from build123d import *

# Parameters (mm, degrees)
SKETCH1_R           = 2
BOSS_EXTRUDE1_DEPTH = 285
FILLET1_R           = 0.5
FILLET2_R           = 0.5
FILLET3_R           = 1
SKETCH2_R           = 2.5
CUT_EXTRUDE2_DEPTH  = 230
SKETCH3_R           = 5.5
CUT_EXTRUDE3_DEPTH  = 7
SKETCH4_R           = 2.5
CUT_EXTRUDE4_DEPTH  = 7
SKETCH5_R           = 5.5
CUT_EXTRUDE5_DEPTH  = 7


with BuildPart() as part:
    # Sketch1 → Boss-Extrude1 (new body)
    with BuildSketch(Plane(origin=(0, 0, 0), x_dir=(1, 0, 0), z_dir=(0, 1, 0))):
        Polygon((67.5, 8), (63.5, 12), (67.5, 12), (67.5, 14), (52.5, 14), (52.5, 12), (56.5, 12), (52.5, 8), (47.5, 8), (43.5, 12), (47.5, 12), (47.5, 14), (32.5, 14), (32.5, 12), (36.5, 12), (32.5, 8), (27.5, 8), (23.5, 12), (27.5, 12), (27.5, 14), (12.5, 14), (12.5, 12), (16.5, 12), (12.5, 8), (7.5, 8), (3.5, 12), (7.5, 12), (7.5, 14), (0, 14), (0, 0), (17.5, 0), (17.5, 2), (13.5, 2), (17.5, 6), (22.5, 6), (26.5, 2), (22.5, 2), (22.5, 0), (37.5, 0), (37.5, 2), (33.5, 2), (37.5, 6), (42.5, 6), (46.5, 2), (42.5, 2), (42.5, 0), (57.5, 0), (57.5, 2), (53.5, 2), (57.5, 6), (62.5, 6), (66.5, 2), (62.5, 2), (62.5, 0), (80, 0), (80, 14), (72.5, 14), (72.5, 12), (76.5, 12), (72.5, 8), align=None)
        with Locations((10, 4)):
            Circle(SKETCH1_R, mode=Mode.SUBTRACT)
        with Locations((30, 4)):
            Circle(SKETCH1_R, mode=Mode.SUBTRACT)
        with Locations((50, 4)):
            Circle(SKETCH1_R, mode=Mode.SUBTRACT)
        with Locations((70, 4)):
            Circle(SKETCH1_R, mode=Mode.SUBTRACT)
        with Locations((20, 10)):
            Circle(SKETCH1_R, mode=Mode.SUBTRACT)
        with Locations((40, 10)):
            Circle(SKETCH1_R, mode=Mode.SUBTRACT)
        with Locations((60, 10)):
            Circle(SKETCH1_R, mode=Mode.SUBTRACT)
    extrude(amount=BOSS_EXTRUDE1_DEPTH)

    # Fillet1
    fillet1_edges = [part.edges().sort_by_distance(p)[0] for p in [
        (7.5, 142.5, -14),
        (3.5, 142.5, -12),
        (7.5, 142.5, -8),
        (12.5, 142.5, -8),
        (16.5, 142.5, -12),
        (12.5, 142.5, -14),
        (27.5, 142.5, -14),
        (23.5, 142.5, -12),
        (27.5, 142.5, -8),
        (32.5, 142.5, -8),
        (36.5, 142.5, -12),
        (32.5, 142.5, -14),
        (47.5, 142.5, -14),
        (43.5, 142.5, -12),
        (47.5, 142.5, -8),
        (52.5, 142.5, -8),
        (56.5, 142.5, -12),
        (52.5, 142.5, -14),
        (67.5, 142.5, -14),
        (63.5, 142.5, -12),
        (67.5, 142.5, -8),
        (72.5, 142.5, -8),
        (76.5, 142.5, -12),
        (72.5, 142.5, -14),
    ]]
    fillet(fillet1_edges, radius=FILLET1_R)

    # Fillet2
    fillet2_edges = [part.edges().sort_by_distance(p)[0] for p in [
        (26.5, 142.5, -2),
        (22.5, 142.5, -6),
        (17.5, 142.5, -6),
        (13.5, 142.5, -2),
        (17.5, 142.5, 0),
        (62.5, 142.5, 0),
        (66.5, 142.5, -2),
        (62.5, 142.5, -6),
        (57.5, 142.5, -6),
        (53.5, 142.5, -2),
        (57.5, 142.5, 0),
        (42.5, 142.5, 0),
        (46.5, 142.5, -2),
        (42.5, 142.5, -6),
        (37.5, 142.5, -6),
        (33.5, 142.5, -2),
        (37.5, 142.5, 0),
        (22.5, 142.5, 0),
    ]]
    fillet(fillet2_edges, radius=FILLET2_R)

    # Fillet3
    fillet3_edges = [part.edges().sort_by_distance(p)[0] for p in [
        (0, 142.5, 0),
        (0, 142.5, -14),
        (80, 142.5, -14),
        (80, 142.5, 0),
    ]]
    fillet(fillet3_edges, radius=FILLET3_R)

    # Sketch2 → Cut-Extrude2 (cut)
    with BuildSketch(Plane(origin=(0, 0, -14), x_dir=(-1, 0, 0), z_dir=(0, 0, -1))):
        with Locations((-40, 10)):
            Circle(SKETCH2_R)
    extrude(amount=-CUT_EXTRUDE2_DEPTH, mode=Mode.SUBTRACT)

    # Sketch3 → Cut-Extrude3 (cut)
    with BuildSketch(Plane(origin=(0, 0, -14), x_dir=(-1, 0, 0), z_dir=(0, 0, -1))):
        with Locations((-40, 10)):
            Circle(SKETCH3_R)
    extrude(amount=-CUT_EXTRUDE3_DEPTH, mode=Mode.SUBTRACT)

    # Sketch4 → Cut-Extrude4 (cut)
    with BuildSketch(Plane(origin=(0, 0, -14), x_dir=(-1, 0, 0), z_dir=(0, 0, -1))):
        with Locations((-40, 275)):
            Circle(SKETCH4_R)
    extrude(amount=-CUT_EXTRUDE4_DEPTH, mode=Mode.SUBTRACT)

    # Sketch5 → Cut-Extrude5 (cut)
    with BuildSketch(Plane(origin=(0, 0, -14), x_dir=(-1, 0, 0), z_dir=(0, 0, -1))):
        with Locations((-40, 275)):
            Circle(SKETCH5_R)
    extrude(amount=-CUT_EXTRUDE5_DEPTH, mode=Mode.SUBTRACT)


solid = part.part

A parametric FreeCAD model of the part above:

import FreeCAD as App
import Part
import Sketcher
Q = App.Units.Quantity


def edges_at(feature, points):
    """Names of the edges that pass closest to the given points."""
    edges = feature.Shape.Edges
    near = lambda p: min(range(len(edges)), key=lambda i: edges[i].distToShape(Part.Vertex(*p))[0])
    return sorted({f"Edge{near(p) + 1}" for p in points})


def add_polygon(sketch, points):
    """Adds a closed chain of lines whose ends are joined by coincident constraints."""
    first, n = sketch.GeometryCount, len(points)
    for a, b in zip(points, points[1:] + points[:1]):
        sketch.addGeometry(Part.LineSegment(App.Vector(*a, 0), App.Vector(*b, 0)), False)
    for i in range(n):
        sketch.addConstraint(Sketcher.Constraint("Coincident", first + i, 2, first + (i + 1) % n, 1))

doc = App.newDocument("Part")
body = doc.addObject("PartDesign::Body", "Body")

# Sketch on XZ plane
sketch1 = body.newObject("Sketcher::SketchObject", "Sketch")
sketch1.AttachmentSupport = (doc.getObject("XZ_Plane"), [""])
sketch1.MapMode = "FlatFace"
add_polygon(sketch1, [(67.5, -8), (63.5, -12), (67.5, -12), (67.5, -14), (52.5, -14), (52.5, -12), (56.5, -12), (52.5, -8), (47.5, -8), (43.5, -12), (47.5, -12), (47.5, -14), (32.5, -14), (32.5, -12), (36.5, -12), (32.5, -8), (27.5, -8), (23.5, -12), (27.5, -12), (27.5, -14), (12.5, -14), (12.5, -12), (16.5, -12), (12.5, -8), (7.5, -8), (3.5, -12), (7.5, -12), (7.5, -14), (0, -14), (0, 0), (17.5, 0), (17.5, -2), (13.5, -2), (17.5, -6), (22.5, -6), (26.5, -2), (22.5, -2), (22.5, 0), (37.5, 0), (37.5, -2), (33.5, -2), (37.5, -6), (42.5, -6), (46.5, -2), (42.5, -2), (42.5, 0), (57.5, 0), (57.5, -2), (53.5, -2), (57.5, -6), (62.5, -6), (66.5, -2), (62.5, -2), (62.5, 0), (80, 0), (80, -14), (72.5, -14), (72.5, -12), (76.5, -12), (72.5, -8)])  # lines 0-59
sketch1.addGeometry(Part.Circle(App.Vector(10, -4, 0), App.Vector(0, 0, 1), 2), False)  # 60
sketch1.addGeometry(Part.Circle(App.Vector(30, -4, 0), App.Vector(0, 0, 1), 2), False)  # 61
sketch1.addGeometry(Part.Circle(App.Vector(50, -4, 0), App.Vector(0, 0, 1), 2), False)  # 62
sketch1.addGeometry(Part.Circle(App.Vector(70, -4, 0), App.Vector(0, 0, 1), 2), False)  # 63
sketch1.addGeometry(Part.Circle(App.Vector(20, -10, 0), App.Vector(0, 0, 1), 2), False)  # 64
sketch1.addGeometry(Part.Circle(App.Vector(40, -10, 0), App.Vector(0, 0, 1), 2), False)  # 65
sketch1.addGeometry(Part.Circle(App.Vector(60, -10, 0), App.Vector(0, 0, 1), 2), False)  # 66
sketch1.addConstraint([
    Sketcher.Constraint("Horizontal", 1),
    Sketcher.Constraint("Vertical", 2),
    Sketcher.Constraint("Horizontal", 3),
    Sketcher.Constraint("Vertical", 4),
    Sketcher.Constraint("Horizontal", 5),
    Sketcher.Constraint("Horizontal", 7),
    Sketcher.Constraint("Horizontal", 9),
    Sketcher.Constraint("Vertical", 10),
    Sketcher.Constraint("Horizontal", 11),
    Sketcher.Constraint("Vertical", 12),
    Sketcher.Constraint("Horizontal", 13),
    Sketcher.Constraint("Horizontal", 15),
    Sketcher.Constraint("Horizontal", 17),
    Sketcher.Constraint("Vertical", 18),
    Sketcher.Constraint("Horizontal", 19),
    Sketcher.Constraint("Vertical", 20),
    Sketcher.Constraint("Horizontal", 21),
    Sketcher.Constraint("Horizontal", 23),
    Sketcher.Constraint("Horizontal", 25),
    Sketcher.Constraint("Vertical", 26),
    Sketcher.Constraint("Horizontal", 27),
    Sketcher.Constraint("Vertical", 28),
    Sketcher.Constraint("Horizontal", 29),
    Sketcher.Constraint("Vertical", 30),
    Sketcher.Constraint("Horizontal", 31),
    Sketcher.Constraint("Horizontal", 33),
    Sketcher.Constraint("Horizontal", 35),
    Sketcher.Constraint("Vertical", 36),
    Sketcher.Constraint("Horizontal", 37),
    Sketcher.Constraint("Vertical", 38),
    Sketcher.Constraint("Horizontal", 39),
    Sketcher.Constraint("Horizontal", 41),
    Sketcher.Constraint("Horizontal", 43),
    Sketcher.Constraint("Vertical", 44),
    Sketcher.Constraint("Horizontal", 45),
    Sketcher.Constraint("Vertical", 46),
    Sketcher.Constraint("Horizontal", 47),
    Sketcher.Constraint("Horizontal", 49),
    Sketcher.Constraint("Horizontal", 51),
    Sketcher.Constraint("Vertical", 52),
    Sketcher.Constraint("Horizontal", 53),
    Sketcher.Constraint("Vertical", 54),
    Sketcher.Constraint("Horizontal", 55),
    Sketcher.Constraint("Vertical", 56),
    Sketcher.Constraint("Horizontal", 57),
    Sketcher.Constraint("Horizontal", 59),
    Sketcher.Constraint("Coincident", 28, 2, -1, 1),
    Sketcher.Constraint("Equal", 60, 61),
    Sketcher.Constraint("Equal", 61, 62),
    Sketcher.Constraint("Equal", 62, 63),
    Sketcher.Constraint("Equal", 63, 64),
    Sketcher.Constraint("Equal", 64, 65),
    Sketcher.Constraint("Equal", 65, 66),
    Sketcher.Constraint("PointOnObject", 36, 2, -1),
    Sketcher.Constraint("PointOnObject", 44, 2, -1),
    Sketcher.Constraint("PointOnObject", 52, 2, -1),
    Sketcher.Constraint("Perpendicular", 0, 6),
    Sketcher.Constraint("Perpendicular", 6, 8),
    Sketcher.Constraint("Perpendicular", 8, 14),
    Sketcher.Constraint("Perpendicular", 14, 16),
    Sketcher.Constraint("Perpendicular", 16, 22),
    Sketcher.Constraint("Perpendicular", 22, 24),
    Sketcher.Constraint("Perpendicular", 24, 32),
    Sketcher.Constraint("Perpendicular", 32, 34),
    Sketcher.Constraint("Perpendicular", 34, 40),
    Sketcher.Constraint("Perpendicular", 40, 42),
    Sketcher.Constraint("Perpendicular", 42, 48),
    Sketcher.Constraint("Perpendicular", 48, 50),
    Sketcher.Constraint("Perpendicular", 50, 58),
    Sketcher.Constraint("Horizontal", 60, 3, 61, 3),
    Sketcher.Constraint("Horizontal", 61, 3, 62, 3),
    Sketcher.Constraint("Horizontal", 62, 3, 63, 3),
    Sketcher.Constraint("Horizontal", 64, 3, 65, 3),
    Sketcher.Constraint("Horizontal", 65, 3, 66, 3),
    Sketcher.Constraint("Horizontal", 1, 2, 4, 2),
    Sketcher.Constraint("Horizontal", 5, 2, 8, 2),
    Sketcher.Constraint("Horizontal", 3, 2, 10, 2),
    Sketcher.Constraint("Horizontal", 9, 2, 12, 2),
    Sketcher.Constraint("Horizontal", 7, 2, 14, 2),
    Sketcher.Constraint("Horizontal", 13, 2, 16, 2),
    Sketcher.Constraint("Horizontal", 11, 2, 18, 2),
    Sketcher.Constraint("Horizontal", 17, 2, 20, 2),
    Sketcher.Constraint("Horizontal", 15, 2, 22, 2),
    Sketcher.Constraint("Horizontal", 21, 2, 24, 2),
    Sketcher.Constraint("Horizontal", 19, 2, 26, 2),
    Sketcher.Constraint("Horizontal", 31, 2, 34, 2),
    Sketcher.Constraint("Horizontal", 35, 2, 38, 2),
    Sketcher.Constraint("Horizontal", 33, 2, 40, 2),
    Sketcher.Constraint("Horizontal", 39, 2, 42, 2),
    Sketcher.Constraint("Horizontal", 43, 2, 46, 2),
    Sketcher.Constraint("Horizontal", 41, 2, 48, 2),
    Sketcher.Constraint("Horizontal", 47, 2, 50, 2),
    Sketcher.Constraint("Horizontal", 27, 2, 54, 2),
    Sketcher.Constraint("Horizontal", 25, 2, 56, 2),
    Sketcher.Constraint("Horizontal", 23, 2, 58, 2),
    Sketcher.Constraint("Vertical", 4, 2, 6, 2),
    Sketcher.Constraint("Vertical", 7, 2, 9, 2),
    Sketcher.Constraint("Vertical", 12, 2, 14, 2),
    Sketcher.Constraint("Vertical", 15, 2, 17, 2),
    Sketcher.Constraint("Vertical", 20, 2, 22, 2),
    Sketcher.Constraint("Vertical", 23, 2, 25, 2),
    Sketcher.Constraint("Vertical", 30, 2, 32, 2),
    Sketcher.Constraint("Vertical", 33, 2, 35, 2),
    Sketcher.Constraint("Vertical", 38, 2, 40, 2),
    Sketcher.Constraint("Vertical", 41, 2, 43, 2),
    Sketcher.Constraint("Vertical", 46, 2, 48, 2),
    Sketcher.Constraint("Vertical", 49, 2, 51, 2),
    Sketcher.Constraint("Vertical", 56, 2, 58, 2),
    Sketcher.Constraint("Vertical", 2, 2, 59, 2),
    Sketcher.Constraint("Equal", 1, 5),
    Sketcher.Constraint("Equal", 3, 11),
    Sketcher.Constraint("Equal", 7, 15),
    Sketcher.Constraint("Equal", 11, 19),
    Sketcher.Constraint("Equal", 15, 23),
    Sketcher.Constraint("Equal", 25, 31),
    Sketcher.Constraint("Equal", 23, 33),
    Sketcher.Constraint("Equal", 19, 37),
    Sketcher.Constraint("Equal", 33, 41),
    Sketcher.Constraint("Equal", 37, 45),
    Sketcher.Constraint("Equal", 41, 49),
    Sketcher.Constraint("Equal", 29, 53),
    Sketcher.Constraint("Equal", 27, 55),
    Sketcher.Constraint("Equal", 49, 59),
    Sketcher.Constraint("Equal", 26, 30),
    Sketcher.Constraint("Diameter", 60, Q("4 mm")),
    Sketcher.Constraint("DistanceX", 1, 1, 1, 2, Q("4 mm")),
    Sketcher.Constraint("DistanceX", 3, 2, 3, 1, Q("15 mm")),
    Sketcher.Constraint("DistanceX", 7, 2, 7, 1, Q("5 mm")),
    Sketcher.Constraint("DistanceY", 2, 2, 2, 1, Q("2 mm")),
    Sketcher.Constraint("DistanceY", 28, 1, 28, 2, Q("14 mm")),
    Sketcher.Constraint("DistanceX", 27, 2, 27, 1, Q("7.5 mm")),
    Sketcher.Constraint("DistanceX", -1, 1, 60, 3, Q("10 mm")),
    Sketcher.Constraint("DistanceY", 60, 3, -1, 1, Q("4 mm")),
    Sketcher.Constraint("DistanceX", -1, 1, 61, 3, Q("30 mm")),
    Sketcher.Constraint("DistanceX", -1, 1, 62, 3, Q("50 mm")),
    Sketcher.Constraint("DistanceX", -1, 1, 63, 3, Q("70 mm")),
    Sketcher.Constraint("DistanceX", -1, 1, 64, 3, Q("20 mm")),
    Sketcher.Constraint("DistanceY", 64, 3, -1, 1, Q("10 mm")),
    Sketcher.Constraint("DistanceX", -1, 1, 65, 3, Q("40 mm")),
    Sketcher.Constraint("DistanceX", -1, 1, 66, 3, Q("60 mm")),
])
pad1 = body.newObject("PartDesign::Pad", "Pad")
pad1.Profile = sketch1
pad1.Length = 285
pad1.Reversed = True
doc.recompute()

fillet = body.newObject("PartDesign::Fillet", "Fillet")
fillet.Base = (pad1, edges_at(pad1, [
    (7.5, 142.5, -14),
    (3.5, 142.5, -12),
    (7.5, 142.5, -8),
    (12.5, 142.5, -8),
    (16.5, 142.5, -12),
    (12.5, 142.5, -14),
    (27.5, 142.5, -14),
    (23.5, 142.5, -12),
    (27.5, 142.5, -8),
    (32.5, 142.5, -8),
    (36.5, 142.5, -12),
    (32.5, 142.5, -14),
    (47.5, 142.5, -14),
    (43.5, 142.5, -12),
    (47.5, 142.5, -8),
    (52.5, 142.5, -8),
    (56.5, 142.5, -12),
    (52.5, 142.5, -14),
    (67.5, 142.5, -14),
    (63.5, 142.5, -12),
    (67.5, 142.5, -8),
    (72.5, 142.5, -8),
    (76.5, 142.5, -12),
    (72.5, 142.5, -14),
]))
fillet.Radius = 0.5
doc.recompute()

fillet2 = body.newObject("PartDesign::Fillet", "Fillet001")
fillet2.Base = (fillet, edges_at(fillet, [
    (26.5, 142.5, -2),
    (22.5, 142.5, -6),
    (17.5, 142.5, -6),
    (13.5, 142.5, -2),
    (17.5, 142.5, 0),
    (62.5, 142.5, 0),
    (66.5, 142.5, -2),
    (62.5, 142.5, -6),
    (57.5, 142.5, -6),
    (53.5, 142.5, -2),
    (57.5, 142.5, 0),
    (42.5, 142.5, 0),
    (46.5, 142.5, -2),
    (42.5, 142.5, -6),
    (37.5, 142.5, -6),
    (33.5, 142.5, -2),
    (37.5, 142.5, 0),
    (22.5, 142.5, 0),
]))
fillet2.Radius = 0.5
doc.recompute()

fillet3 = body.newObject("PartDesign::Fillet", "Fillet002")
fillet3.Base = (fillet2, edges_at(fillet2, [
    (0, 142.5, 0),
    (0, 142.5, -14),
    (80, 142.5, -14),
    (80, 142.5, 0),
]))
fillet3.Radius = 1

# Sketch on XY plane
sketch2 = body.newObject("Sketcher::SketchObject", "Sketch001")
sketch2.AttachmentSupport = (doc.getObject("XY_Plane"), [""])
sketch2.MapMode = "FlatFace"
sketch2.AttachmentOffset = App.Placement(App.Vector(0, 0, -14), App.Rotation())
sketch2.addGeometry(Part.Circle(App.Vector(40, 10, 0), App.Vector(0, 0, 1), 2.5), False)
sketch2.addConstraint([
    Sketcher.Constraint("Diameter", 0, Q("5 mm")),
    Sketcher.Constraint("DistanceX", -1, 1, 0, 3, Q("40 mm")),
    Sketcher.Constraint("DistanceY", -1, 1, 0, 3, Q("10 mm")),
])
pocket1 = body.newObject("PartDesign::Pocket", "Pocket")
pocket1.Profile = sketch2
pocket1.Length = 230
pocket1.Reversed = True

# Sketch on XY plane
sketch3 = body.newObject("Sketcher::SketchObject", "Sketch002")
sketch3.AttachmentSupport = (doc.getObject("XY_Plane"), [""])
sketch3.MapMode = "FlatFace"
sketch3.AttachmentOffset = App.Placement(App.Vector(0, 0, -14), App.Rotation())
sketch3.addGeometry(Part.Circle(App.Vector(40, 10, 0), App.Vector(0, 0, 1), 5.5), False)
sketch3.addConstraint([
    Sketcher.Constraint("Diameter", 0, Q("11 mm")),
    Sketcher.Constraint("DistanceX", -1, 1, 0, 3, Q("40 mm")),
    Sketcher.Constraint("DistanceY", -1, 1, 0, 3, Q("10 mm")),
])
pocket2 = body.newObject("PartDesign::Pocket", "Pocket001")
pocket2.Profile = sketch3
pocket2.Length = 7
pocket2.Reversed = True

# Sketch on XY plane
sketch4 = body.newObject("Sketcher::SketchObject", "Sketch003")
sketch4.AttachmentSupport = (doc.getObject("XY_Plane"), [""])
sketch4.MapMode = "FlatFace"
sketch4.AttachmentOffset = App.Placement(App.Vector(0, 0, -14), App.Rotation())
sketch4.addGeometry(Part.Circle(App.Vector(40, 275, 0), App.Vector(0, 0, 1), 2.5), False)
sketch4.addConstraint([
    Sketcher.Constraint("Diameter", 0, Q("5 mm")),
    Sketcher.Constraint("DistanceX", -1, 1, 0, 3, Q("40 mm")),
    Sketcher.Constraint("DistanceY", -1, 1, 0, 3, Q("275 mm")),
])
pocket3 = body.newObject("PartDesign::Pocket", "Pocket002")
pocket3.Profile = sketch4
pocket3.Length = 7
pocket3.Reversed = True

# Sketch on XY plane
sketch5 = body.newObject("Sketcher::SketchObject", "Sketch004")
sketch5.AttachmentSupport = (doc.getObject("XY_Plane"), [""])
sketch5.MapMode = "FlatFace"
sketch5.AttachmentOffset = App.Placement(App.Vector(0, 0, -14), App.Rotation())
sketch5.addGeometry(Part.Circle(App.Vector(40, 275, 0), App.Vector(0, 0, 1), 5.5), False)
sketch5.addConstraint([
    Sketcher.Constraint("Diameter", 0, Q("11 mm")),
    Sketcher.Constraint("DistanceX", -1, 1, 0, 3, Q("40 mm")),
    Sketcher.Constraint("DistanceY", -1, 1, 0, 3, Q("275 mm")),
])
pocket4 = body.newObject("PartDesign::Pocket", "Pocket003")
pocket4.Profile = sketch5
pocket4.Length = 7
pocket4.Reversed = True

doc.recompute()
